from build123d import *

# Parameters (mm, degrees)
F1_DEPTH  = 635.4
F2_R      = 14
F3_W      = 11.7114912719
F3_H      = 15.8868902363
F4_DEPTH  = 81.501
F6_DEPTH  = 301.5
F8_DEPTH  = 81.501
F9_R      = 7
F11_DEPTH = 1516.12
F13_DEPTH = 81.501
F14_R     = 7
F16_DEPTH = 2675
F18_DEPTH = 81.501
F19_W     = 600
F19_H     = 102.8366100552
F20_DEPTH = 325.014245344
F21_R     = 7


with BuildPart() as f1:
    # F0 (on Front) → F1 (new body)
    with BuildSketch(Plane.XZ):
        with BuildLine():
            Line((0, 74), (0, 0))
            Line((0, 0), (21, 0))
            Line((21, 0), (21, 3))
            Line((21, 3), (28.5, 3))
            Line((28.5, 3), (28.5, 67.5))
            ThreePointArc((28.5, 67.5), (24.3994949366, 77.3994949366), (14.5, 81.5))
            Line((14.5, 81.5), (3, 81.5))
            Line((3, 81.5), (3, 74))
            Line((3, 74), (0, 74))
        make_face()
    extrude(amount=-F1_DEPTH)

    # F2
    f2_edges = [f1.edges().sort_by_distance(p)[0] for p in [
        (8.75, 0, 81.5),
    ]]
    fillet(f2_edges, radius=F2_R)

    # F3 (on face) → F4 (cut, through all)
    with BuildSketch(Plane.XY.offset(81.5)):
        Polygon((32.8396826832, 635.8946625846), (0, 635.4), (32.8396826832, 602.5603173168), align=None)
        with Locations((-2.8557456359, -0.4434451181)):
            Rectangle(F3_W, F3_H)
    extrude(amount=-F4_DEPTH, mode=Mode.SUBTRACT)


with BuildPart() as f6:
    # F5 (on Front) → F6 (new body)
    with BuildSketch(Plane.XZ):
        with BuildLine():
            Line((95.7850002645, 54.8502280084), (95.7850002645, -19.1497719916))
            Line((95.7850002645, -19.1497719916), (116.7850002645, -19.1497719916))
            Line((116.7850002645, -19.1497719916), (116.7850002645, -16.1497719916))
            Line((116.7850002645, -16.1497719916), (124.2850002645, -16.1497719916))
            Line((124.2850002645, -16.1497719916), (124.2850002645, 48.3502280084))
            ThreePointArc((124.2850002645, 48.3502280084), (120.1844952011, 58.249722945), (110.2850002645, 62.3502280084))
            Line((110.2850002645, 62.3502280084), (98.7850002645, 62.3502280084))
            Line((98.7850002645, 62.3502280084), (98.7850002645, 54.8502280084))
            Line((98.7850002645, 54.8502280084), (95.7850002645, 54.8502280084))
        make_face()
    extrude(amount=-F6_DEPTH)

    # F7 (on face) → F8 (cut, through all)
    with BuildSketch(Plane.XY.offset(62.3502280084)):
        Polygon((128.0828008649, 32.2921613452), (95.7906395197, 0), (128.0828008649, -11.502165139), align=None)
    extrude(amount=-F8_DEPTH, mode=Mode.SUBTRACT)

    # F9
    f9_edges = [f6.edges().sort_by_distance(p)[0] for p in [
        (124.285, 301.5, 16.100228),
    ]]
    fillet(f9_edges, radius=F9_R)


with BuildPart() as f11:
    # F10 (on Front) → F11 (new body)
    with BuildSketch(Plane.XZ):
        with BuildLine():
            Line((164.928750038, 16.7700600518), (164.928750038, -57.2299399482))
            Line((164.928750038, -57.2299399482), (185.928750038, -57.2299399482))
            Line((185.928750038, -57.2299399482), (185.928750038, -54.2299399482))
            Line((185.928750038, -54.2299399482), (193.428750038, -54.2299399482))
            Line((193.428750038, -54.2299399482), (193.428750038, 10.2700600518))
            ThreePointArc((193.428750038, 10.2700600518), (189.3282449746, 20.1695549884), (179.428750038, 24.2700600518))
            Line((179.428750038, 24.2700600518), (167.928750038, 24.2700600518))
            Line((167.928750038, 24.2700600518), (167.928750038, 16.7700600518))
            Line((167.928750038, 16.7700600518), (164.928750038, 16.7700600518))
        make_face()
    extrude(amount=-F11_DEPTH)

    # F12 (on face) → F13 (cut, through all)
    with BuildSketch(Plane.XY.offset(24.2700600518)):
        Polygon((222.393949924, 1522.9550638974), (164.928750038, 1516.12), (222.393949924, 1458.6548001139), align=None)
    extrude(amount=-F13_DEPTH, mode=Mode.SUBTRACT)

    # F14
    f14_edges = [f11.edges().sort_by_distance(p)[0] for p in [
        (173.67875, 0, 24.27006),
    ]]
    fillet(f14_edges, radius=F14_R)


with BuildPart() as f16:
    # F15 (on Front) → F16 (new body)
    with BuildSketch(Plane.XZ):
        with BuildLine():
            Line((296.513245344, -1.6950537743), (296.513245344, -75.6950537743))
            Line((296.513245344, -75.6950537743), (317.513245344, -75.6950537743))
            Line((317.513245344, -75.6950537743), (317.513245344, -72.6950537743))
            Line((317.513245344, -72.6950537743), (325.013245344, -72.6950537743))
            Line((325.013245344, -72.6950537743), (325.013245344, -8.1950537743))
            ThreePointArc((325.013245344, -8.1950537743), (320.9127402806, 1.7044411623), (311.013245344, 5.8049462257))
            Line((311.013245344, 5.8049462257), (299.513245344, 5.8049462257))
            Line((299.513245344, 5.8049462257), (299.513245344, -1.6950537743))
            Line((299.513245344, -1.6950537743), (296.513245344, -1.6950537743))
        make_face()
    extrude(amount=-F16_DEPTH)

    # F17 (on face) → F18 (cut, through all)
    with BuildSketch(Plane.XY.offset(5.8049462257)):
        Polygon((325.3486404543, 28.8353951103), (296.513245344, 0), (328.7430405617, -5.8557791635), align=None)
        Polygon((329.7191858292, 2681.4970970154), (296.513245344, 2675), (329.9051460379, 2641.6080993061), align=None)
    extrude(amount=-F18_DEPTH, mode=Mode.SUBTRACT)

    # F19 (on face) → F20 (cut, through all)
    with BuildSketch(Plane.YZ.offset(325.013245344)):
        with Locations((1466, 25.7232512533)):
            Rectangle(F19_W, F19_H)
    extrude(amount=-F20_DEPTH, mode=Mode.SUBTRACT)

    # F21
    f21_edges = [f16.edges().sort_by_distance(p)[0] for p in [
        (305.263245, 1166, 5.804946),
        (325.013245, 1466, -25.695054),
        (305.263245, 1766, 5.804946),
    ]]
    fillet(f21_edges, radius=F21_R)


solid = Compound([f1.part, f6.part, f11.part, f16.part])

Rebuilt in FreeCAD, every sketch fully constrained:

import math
import FreeCAD as App
import Part
import Sketcher

V = App.Vector
Q = App.Units.Quantity


def edges_at(feature, points):
    """Names of the edges that pass closest to the given points."""
    edges = feature.Shape.Edges
    near = lambda p: min(range(len(edges)), key=lambda i: edges[i].distToShape(Part.Vertex(*p))[0])
    return sorted({f"Edge{near(p) + 1}" for p in points})

doc = App.newDocument("Part")
body = doc.addObject("PartDesign::Body", "Body")

# Sketch on XZ plane
sketch1 = body.newObject("Sketcher::SketchObject", "Sketch")
sketch1.AttachmentSupport = (doc.getObject("XZ_Plane"), [""])
sketch1.MapMode = "FlatFace"
sketch1.addGeometry(Part.LineSegment(V(0, 74, 0), V(0, 0, 0)), False)
sketch1.addGeometry(Part.LineSegment(V(0, 0, 0), V(21, 0, 0)), False)
sketch1.addGeometry(Part.LineSegment(V(21, 0, 0), V(21, 3, 0)), False)
sketch1.addGeometry(Part.LineSegment(V(21, 3, 0), V(28.5, 3, 0)), False)
sketch1.addGeometry(Part.LineSegment(V(28.5, 3, 0), V(28.5, 67.5, 0)), False)
sketch1.addGeometry(Part.ArcOfCircle(Part.Circle(V(14.5, 67.5, 0), V(0, 0, 1), 14), math.radians(0), math.radians(90)), False)
sketch1.addGeometry(Part.LineSegment(V(14.5, 81.5, 0), V(3, 81.5, 0)), False)
sketch1.addGeometry(Part.LineSegment(V(3, 81.5, 0), V(3, 74, 0)), False)
sketch1.addGeometry(Part.LineSegment(V(3, 74, 0), V(0, 74, 0)), False)
sketch1.addConstraint(Sketcher.Constraint("Coincident", 0, 2, 1, 1))
sketch1.addConstraint(Sketcher.Constraint("Coincident", 1, 2, 2, 1))
sketch1.addConstraint(Sketcher.Constraint("Coincident", 2, 2, 3, 1))
sketch1.addConstraint(Sketcher.Constraint("Coincident", 3, 2, 4, 1))
sketch1.addConstraint(Sketcher.Constraint("Tangent", 4, 2, 5, 1))
sketch1.addConstraint(Sketcher.Constraint("Tangent", 5, 2, 6, 1))
sketch1.addConstraint(Sketcher.Constraint("Coincident", 6, 2, 7, 1))
sketch1.addConstraint(Sketcher.Constraint("Coincident", 7, 2, 8, 1))
sketch1.addConstraint(Sketcher.Constraint("Coincident", 8, 2, 0, 1))
sketch1.addConstraint(Sketcher.Constraint("Vertical", 0))
sketch1.addConstraint(Sketcher.Constraint("Horizontal", 1))
sketch1.addConstraint(Sketcher.Constraint("Vertical", 2))
sketch1.addConstraint(Sketcher.Constraint("Horizontal", 3))
sketch1.addConstraint(Sketcher.Constraint("Vertical", 4))
sketch1.addConstraint(Sketcher.Constraint("Horizontal", 6))
sketch1.addConstraint(Sketcher.Constraint("Vertical", 7))
sketch1.addConstraint(Sketcher.Constraint("Horizontal", 8))
sketch1.addConstraint(Sketcher.Constraint("Coincident", 0, 2, -1, 1))
sketch1.addConstraint(Sketcher.Constraint("Equal", 8, 2))
sketch1.addConstraint(Sketcher.Constraint("Equal", 3, 7))
sketch1.addConstraint(Sketcher.Constraint("Radius", 5, Q("14 mm")))
sketch1.addConstraint(Sketcher.Constraint("DistanceX", 1, 1, 1, 2, Q("21 mm")))
sketch1.addConstraint(Sketcher.Constraint("DistanceX", 8, 2, 8, 1, Q("3 mm")))
sketch1.addConstraint(Sketcher.Constraint("DistanceY", 0, 2, 0, 1, Q("74 mm")))
sketch1.addConstraint(Sketcher.Constraint("DistanceX", 3, 1, 3, 2, Q("7.5 mm")))
pad1 = body.newObject("PartDesign::Pad", "Pad")
pad1.Profile = sketch1
pad1.Length = 635.4
pad1.Reversed = True
doc.recompute()

fillet = body.newObject("PartDesign::Fillet", "Fillet")
fillet.Base = (pad1, edges_at(pad1, [(8.75, 0, 81.5)]))
fillet.Radius = 14

# Sketch on XY plane
sketch2 = body.newObject("Sketcher::SketchObject", "Sketch001")
sketch2.AttachmentSupport = (doc.getObject("XY_Plane"), [""])
sketch2.MapMode = "FlatFace"
sketch2.AttachmentOffset = App.Placement(V(0, 0, 81.5), App.Rotation())
sketch2.addGeometry(Part.LineSegment(V(33, 636, 0), V(0, 635, 0)), False)
sketch2.addGeometry(Part.LineSegment(V(0, 635, 0), V(33, 603, 0)), False)
sketch2.addGeometry(Part.LineSegment(V(33, 603, 0), V(33, 636, 0)), False)
sketch2.addGeometry(Part.LineSegment(V(-9, 8, 0), V(-9, -8, 0)), False)
sketch2.addGeometry(Part.LineSegment(V(-9, -8, 0), V(3, -8, 0)), False)
sketch2.addGeometry(Part.LineSegment(V(3, -8, 0), V(3, 8, 0)), False)
sketch2.addGeometry(Part.LineSegment(V(3, 8, 0), V(-9, 8, 0)), False)
sketch2.addConstraint(Sketcher.Constraint("Coincident", 0, 2, 1, 1))
sketch2.addConstraint(Sketcher.Constraint("Coincident", 1, 2, 2, 1))
sketch2.addConstraint(Sketcher.Constraint("Coincident", 2, 2, 0, 1))
sketch2.addConstraint(Sketcher.Constraint("Coincident", 3, 2, 4, 1))
sketch2.addConstraint(Sketcher.Constraint("Coincident", 4, 2, 5, 1))
sketch2.addConstraint(Sketcher.Constraint("Coincident", 5, 2, 6, 1))
sketch2.addConstraint(Sketcher.Constraint("Coincident", 6, 2, 3, 1))
sketch2.addConstraint(Sketcher.Constraint("Vertical", 2))
sketch2.addConstraint(Sketcher.Constraint("Vertical", 3))
sketch2.addConstraint(Sketcher.Constraint("Horizontal", 4))
sketch2.addConstraint(Sketcher.Constraint("Vertical", 5))
sketch2.addConstraint(Sketcher.Constraint("Horizontal", 6))
sketch2.addConstraint(Sketcher.Constraint("PointOnObject", 0, 2, -2))
sketch2.addConstraint(Sketcher.Constraint("Angle", 1, Q("-45 deg")))
sketch2.addConstraint(Sketcher.Constraint("DistanceX", -1, 1, 4, 2, Q("3 mm")))
sketch2.addConstraint(Sketcher.Constraint("DistanceY", -1, 1, 0, 2, Q("635.4 mm")))
sketch2.addConstraint(Sketcher.Constraint("DistanceY", -1, 1, 5, 2, Q("7.5 mm")))
sketch2.addConstraint(Sketcher.Constraint("DistanceX", 4, 1, 4, 2, Q("11.711491 mm")))
sketch2.addConstraint(Sketcher.Constraint("DistanceY", 3, 2, 3, 1, Q("15.88689 mm")))
sketch2.addConstraint(Sketcher.Constraint("Distance", 0, Q("32.843408 mm")))
sketch2.addConstraint(Sketcher.Constraint("DistanceY", 2, 1, 2, 2, Q("33.334345 mm")))
pocket1 = body.newObject("PartDesign::Pocket", "Pocket")
pocket1.Profile = sketch2
pocket1.Type = "ThroughAll"
body2 = doc.addObject("PartDesign::Body", "Body001")

# Sketch on XZ plane
sketch3 = body2.newObject("Sketcher::SketchObject", "Sketch002")
sketch3.AttachmentSupport = (doc.getObject("XZ_Plane001"), [""])
sketch3.MapMode = "FlatFace"
sketch3.addGeometry(Part.LineSegment(V(95.8, 54.9, 0), V(95.8, -19.1, 0)), False)
sketch3.addGeometry(Part.LineSegment(V(95.8, -19.1, 0), V(116.8, -19.1, 0)), False)
sketch3.addGeometry(Part.LineSegment(V(116.8, -19.1, 0), V(116.8, -16.1, 0)), False)
sketch3.addGeometry(Part.LineSegment(V(116.8, -16.1, 0), V(124.3, -16.1, 0)), False)
sketch3.addGeometry(Part.LineSegment(V(124.3, -16.1, 0), V(124.3, 48.4, 0)), False)
sketch3.addGeometry(Part.ArcOfCircle(Part.Circle(V(110.3, 48.4, 0), V(0, 0, 1), 14), math.radians(0), math.radians(90)), False)
sketch3.addGeometry(Part.LineSegment(V(110.3, 62.4, 0), V(98.8, 62.4, 0)), False)
sketch3.addGeometry(Part.LineSegment(V(98.8, 62.4, 0), V(98.8, 54.9, 0)), False)
sketch3.addGeometry(Part.LineSegment(V(98.8, 54.9, 0), V(95.8, 54.9, 0)), False)
sketch3.addConstraint(Sketcher.Constraint("Coincident", 0, 2, 1, 1))
sketch3.addConstraint(Sketcher.Constraint("Coincident", 1, 2, 2, 1))
sketch3.addConstraint(Sketcher.Constraint("Coincident", 2, 2, 3, 1))
sketch3.addConstraint(Sketcher.Constraint("Coincident", 3, 2, 4, 1))
sketch3.addConstraint(Sketcher.Constraint("Tangent", 4, 2, 5, 1))
sketch3.addConstraint(Sketcher.Constraint("Tangent", 5, 2, 6, 1))
sketch3.addConstraint(Sketcher.Constraint("Coincident", 6, 2, 7, 1))
sketch3.addConstraint(Sketcher.Constraint("Coincident", 7, 2, 8, 1))
sketch3.addConstraint(Sketcher.Constraint("Coincident", 8, 2, 0, 1))
sketch3.addConstraint(Sketcher.Constraint("Vertical", 0))
sketch3.addConstraint(Sketcher.Constraint("Horizontal", 1))
sketch3.addConstraint(Sketcher.Constraint("Vertical", 2))
sketch3.addConstraint(Sketcher.Constraint("Horizontal", 3))
sketch3.addConstraint(Sketcher.Constraint("Vertical", 4))
sketch3.addConstraint(Sketcher.Constraint("Horizontal", 6))
sketch3.addConstraint(Sketcher.Constraint("Vertical", 7))
sketch3.addConstraint(Sketcher.Constraint("Horizontal", 8))
sketch3.addConstraint(Sketcher.Constraint("Equal", 8, 2))
sketch3.addConstraint(Sketcher.Constraint("Equal", 3, 7))
sketch3.addConstraint(Sketcher.Constraint("Radius", 5, Q("14 mm")))
sketch3.addConstraint(Sketcher.Constraint("DistanceX", 1, 1, 1, 2, Q("21 mm")))
sketch3.addConstraint(Sketcher.Constraint("DistanceX", 8, 2, 8, 1, Q("3 mm")))
sketch3.addConstraint(Sketcher.Constraint("DistanceY", 0, 2, 0, 1, Q("74 mm")))
sketch3.addConstraint(Sketcher.Constraint("DistanceX", 3, 1, 3, 2, Q("7.5 mm")))
sketch3.addConstraint(Sketcher.Constraint("DistanceX", -1, 1, 5, 3, Q("110.285 mm")))
sketch3.addConstraint(Sketcher.Constraint("DistanceY", -1, 1, 5, 3, Q("48.350228 mm")))
pad2 = body2.newObject("PartDesign::Pad", "Pad001")
pad2.Profile = sketch3
pad2.Length = 301.5
pad2.Reversed = True

# Sketch on XY plane
sketch4 = body2.newObject("Sketcher::SketchObject", "Sketch003")
sketch4.AttachmentSupport = (doc.getObject("XY_Plane001"), [""])
sketch4.MapMode = "FlatFace"
sketch4.AttachmentOffset = App.Placement(V(0, 0, 62.350228), App.Rotation())
sketch4.addGeometry(Part.LineSegment(V(128, 32, 0), V(96, 0, 0)), False)
sketch4.addGeometry(Part.LineSegment(V(96, 0, 0), V(128, -12, 0)), False)
sketch4.addGeometry(Part.LineSegment(V(128, -12, 0), V(128, 32, 0)), False)
sketch4.addConstraint(Sketcher.Constraint("Coincident", 0, 2, 1, 1))
sketch4.addConstraint(Sketcher.Constraint("Coincident", 1, 2, 2, 1))
sketch4.addConstraint(Sketcher.Constraint("Coincident", 2, 2, 0, 1))
sketch4.addConstraint(Sketcher.Constraint("Vertical", 2))
sketch4.addConstraint(Sketcher.Constraint("PointOnObject", 0, 2, -1))
sketch4.addConstraint(Sketcher.Constraint("Angle", 0, Q("-135 deg")))
sketch4.addConstraint(Sketcher.Constraint("DistanceX", -1, 1, 1, 2, Q("128.082801 mm")))
sketch4.addConstraint(Sketcher.Constraint("Distance", 1, Q("34.279491 mm")))
sketch4.addConstraint(Sketcher.Constraint("DistanceY", 2, 1, 2, 2, Q("43.794326 mm")))
pocket2 = body2.newObject("PartDesign::Pocket", "Pocket001")
pocket2.Profile = sketch4
pocket2.Type = "ThroughAll"
doc.recompute()

fillet2 = body2.newObject("PartDesign::Fillet", "Fillet001")
fillet2.Base = (pocket2, edges_at(pocket2, [(124.285, 301.5, 16.1)]))
fillet2.Radius = 7
body3 = doc.addObject("PartDesign::Body", "Body002")

# Sketch on XZ plane
sketch5 = body3.newObject("Sketcher::SketchObject", "Sketch004")
sketch5.AttachmentSupport = (doc.getObject("XZ_Plane002"), [""])
sketch5.MapMode = "FlatFace"
sketch5.addGeometry(Part.LineSegment(V(164.9, 16.8, 0), V(164.9, -57.2, 0)), False)
sketch5.addGeometry(Part.LineSegment(V(164.9, -57.2, 0), V(185.9, -57.2, 0)), False)
sketch5.addGeometry(Part.LineSegment(V(185.9, -57.2, 0), V(185.9, -54.2, 0)), False)
sketch5.addGeometry(Part.LineSegment(V(185.9, -54.2, 0), V(193.4, -54.2, 0)), False)
sketch5.addGeometry(Part.LineSegment(V(193.4, -54.2, 0), V(193.4, 10.3, 0)), False)
sketch5.addGeometry(Part.ArcOfCircle(Part.Circle(V(179.4, 10.3, 0), V(0, 0, 1), 14), math.radians(0), math.radians(90)), False)
sketch5.addGeometry(Part.LineSegment(V(179.4, 24.3, 0), V(167.9, 24.3, 0)), False)
sketch5.addGeometry(Part.LineSegment(V(167.9, 24.3, 0), V(167.9, 16.8, 0)), False)
sketch5.addGeometry(Part.LineSegment(V(167.9, 16.8, 0), V(164.9, 16.8, 0)), False)
sketch5.addConstraint(Sketcher.Constraint("Coincident", 0, 2, 1, 1))
sketch5.addConstraint(Sketcher.Constraint("Coincident", 1, 2, 2, 1))
sketch5.addConstraint(Sketcher.Constraint("Coincident", 2, 2, 3, 1))
sketch5.addConstraint(Sketcher.Constraint("Coincident", 3, 2, 4, 1))
sketch5.addConstraint(Sketcher.Constraint("Tangent", 4, 2, 5, 1))
sketch5.addConstraint(Sketcher.Constraint("Tangent", 5, 2, 6, 1))
sketch5.addConstraint(Sketcher.Constraint("Coincident", 6, 2, 7, 1))
sketch5.addConstraint(Sketcher.Constraint("Coincident", 7, 2, 8, 1))
sketch5.addConstraint(Sketcher.Constraint("Coincident", 8, 2, 0, 1))
sketch5.addConstraint(Sketcher.Constraint("Vertical", 0))
sketch5.addConstraint(Sketcher.Constraint("Horizontal", 1))
sketch5.addConstraint(Sketcher.Constraint("Vertical", 2))
sketch5.addConstraint(Sketcher.Constraint("Horizontal", 3))
sketch5.addConstraint(Sketcher.Constraint("Vertical", 4))
sketch5.addConstraint(Sketcher.Constraint("Horizontal", 6))
sketch5.addConstraint(Sketcher.Constraint("Vertical", 7))
sketch5.addConstraint(Sketcher.Constraint("Horizontal", 8))
sketch5.addConstraint(Sketcher.Constraint("Equal", 8, 2))
sketch5.addConstraint(Sketcher.Constraint("Equal", 3, 7))
sketch5.addConstraint(Sketcher.Constraint("Radius", 5, Q("14 mm")))
sketch5.addConstraint(Sketcher.Constraint("DistanceX", 1, 1, 1, 2, Q("21 mm")))
sketch5.addConstraint(Sketcher.Constraint("DistanceX", 8, 2, 8, 1, Q("3 mm")))
sketch5.addConstraint(Sketcher.Constraint("DistanceY", 0, 2, 0, 1, Q("74 mm")))
sketch5.addConstraint(Sketcher.Constraint("DistanceX", 3, 1, 3, 2, Q("7.5 mm")))
sketch5.addConstraint(Sketcher.Constraint("DistanceX", -1, 1, 5, 3, Q("179.42875 mm")))
sketch5.addConstraint(Sketcher.Constraint("DistanceY", -1, 1, 5, 3, Q("10.27006 mm")))
pad3 = body3.newObject("PartDesign::Pad", "Pad002")
pad3.Profile = sketch5
pad3.Length = 1516.12
pad3.Reversed = True

# Sketch on XY plane
sketch6 = body3.newObject("Sketcher::SketchObject", "Sketch005")
sketch6.AttachmentSupport = (doc.getObject("XY_Plane002"), [""])
sketch6.MapMode = "FlatFace"
sketch6.AttachmentOffset = App.Placement(V(0, 0, 24.27006), App.Rotation())
sketch6.addGeometry(Part.LineSegment(V(222, 1523, 0), V(165, 1516, 0)), False)
sketch6.addGeometry(Part.LineSegment(V(165, 1516, 0), V(222, 1459, 0)), False)
sketch6.addGeometry(Part.LineSegment(V(222, 1459, 0), V(222, 1523, 0)), False)
sketch6.addConstraint(Sketcher.Constraint("Coincident", 0, 2, 1, 1))
sketch6.addConstraint(Sketcher.Constraint("Coincident", 1, 2, 2, 1))
sketch6.addConstraint(Sketcher.Constraint("Coincident", 2, 2, 0, 1))
sketch6.addConstraint(Sketcher.Constraint("Vertical", 2))
sketch6.addConstraint(Sketcher.Constraint("Angle", 1, Q("-45 deg")))
sketch6.addConstraint(Sketcher.Constraint("DistanceY", -1, 1, 0, 2, Q("1516.12 mm")))
sketch6.addConstraint(Sketcher.Constraint("DistanceY", -1, 1, 1, 2, Q("1458.6548 mm")))
sketch6.addConstraint(Sketcher.Constraint("DistanceY", 2, 1, 2, 2, Q("64.300264 mm")))
sketch6.addConstraint(Sketcher.Constraint("DistanceX", -1, 1, 0, 2, Q("164.92875 mm")))
pocket3 = body3.newObject("PartDesign::Pocket", "Pocket002")
pocket3.Profile = sketch6
pocket3.Type = "ThroughAll"
doc.recompute()

fillet3 = body3.newObject("PartDesign::Fillet", "Fillet002")
fillet3.Base = (pocket3, edges_at(pocket3, [(173.679, 0, 24.27)]))
fillet3.Radius = 7
body4 = doc.addObject("PartDesign::Body", "Body003")

# Sketch on XZ plane
sketch7 = body4.newObject("Sketcher::SketchObject", "Sketch006")
sketch7.AttachmentSupport = (doc.getObject("XZ_Plane003"), [""])
sketch7.MapMode = "FlatFace"
sketch7.addGeometry(Part.LineSegment(V(296.5, -1.7, 0), V(296.5, -75.7, 0)), False)
sketch7.addGeometry(Part.LineSegment(V(296.5, -75.7, 0), V(317.5, -75.7, 0)), False)
sketch7.addGeometry(Part.LineSegment(V(317.5, -75.7, 0), V(317.5, -72.7, 0)), False)
sketch7.addGeometry(Part.LineSegment(V(317.5, -72.7, 0), V(325, -72.7, 0)), False)
sketch7.addGeometry(Part.LineSegment(V(325, -72.7, 0), V(325, -8.2, 0)), False)
sketch7.addGeometry(Part.ArcOfCircle(Part.Circle(V(311, -8.2, 0), V(0, 0, 1), 14), math.radians(0), math.radians(90)), False)
sketch7.addGeometry(Part.LineSegment(V(311, 5.8, 0), V(299.5, 5.8, 0)), False)
sketch7.addGeometry(Part.LineSegment(V(299.5, 5.8, 0), V(299.5, -1.7, 0)), False)
sketch7.addGeometry(Part.LineSegment(V(299.5, -1.7, 0), V(296.5, -1.7, 0)), False)
sketch7.addConstraint(Sketcher.Constraint("Coincident", 0, 2, 1, 1))
sketch7.addConstraint(Sketcher.Constraint("Coincident", 1, 2, 2, 1))
sketch7.addConstraint(Sketcher.Constraint("Coincident", 2, 2, 3, 1))
sketch7.addConstraint(Sketcher.Constraint("Coincident", 3, 2, 4, 1))
sketch7.addConstraint(Sketcher.Constraint("Tangent", 4, 2, 5, 1))
sketch7.addConstraint(Sketcher.Constraint("Tangent", 5, 2, 6, 1))
sketch7.addConstraint(Sketcher.Constraint("Coincident", 6, 2, 7, 1))
sketch7.addConstraint(Sketcher.Constraint("Coincident", 7, 2, 8, 1))
sketch7.addConstraint(Sketcher.Constraint("Coincident", 8, 2, 0, 1))
sketch7.addConstraint(Sketcher.Constraint("Vertical", 0))
sketch7.addConstraint(Sketcher.Constraint("Horizontal", 1))
sketch7.addConstraint(Sketcher.Constraint("Vertical", 2))
sketch7.addConstraint(Sketcher.Constraint("Horizontal", 3))
sketch7.addConstraint(Sketcher.Constraint("Vertical", 4))
sketch7.addConstraint(Sketcher.Constraint("Horizontal", 6))
sketch7.addConstraint(Sketcher.Constraint("Vertical", 7))
sketch7.addConstraint(Sketcher.Constraint("Horizontal", 8))
sketch7.addConstraint(Sketcher.Constraint("Equal", 8, 2))
sketch7.addConstraint(Sketcher.Constraint("Equal", 3, 7))
sketch7.addConstraint(Sketcher.Constraint("Radius", 5, Q("14 mm")))
sketch7.addConstraint(Sketcher.Constraint("DistanceX", 1, 1, 1, 2, Q("21 mm")))
sketch7.addConstraint(Sketcher.Constraint("DistanceX", 8, 2, 8, 1, Q("3 mm")))
sketch7.addConstraint(Sketcher.Constraint("DistanceY", 0, 2, 0, 1, Q("74 mm")))
sketch7.addConstraint(Sketcher.Constraint("DistanceX", 3, 1, 3, 2, Q("7.5 mm")))
sketch7.addConstraint(Sketcher.Constraint("DistanceX", -1, 1, 5, 3, Q("311.013245 mm")))
sketch7.addConstraint(Sketcher.Constraint("DistanceY", 5, 3, -1, 1, Q("8.195054 mm")))
pad4 = body4.newObject("PartDesign::Pad", "Pad003")
pad4.Profile = sketch7
pad4.Length = 2675
pad4.Reversed = True

# Sketch on XY plane
sketch8 = body4.newObject("Sketcher::SketchObject", "Sketch007")
sketch8.AttachmentSupport = (doc.getObject("XY_Plane003"), [""])
sketch8.MapMode = "FlatFace"
sketch8.AttachmentOffset = App.Placement(V(0, 0, 5.804946), App.Rotation())
sketch8.addGeometry(Part.LineSegment(V(325.34864, 28.835395, 0), V(296.513245, 0, 0)), False)
sketch8.addGeometry(Part.LineSegment(V(296.513245, 0, 0), V(328.743041, -5.855779, 0)), False)
sketch8.addGeometry(Part.LineSegment(V(328.743041, -5.855779, 0), V(325.34864, 28.835395, 0)), False)
sketch8.addGeometry(Part.LineSegment(V(329.719186, 2681.497097, 0), V(296.513245, 2675, 0)), False)
sketch8.addGeometry(Part.LineSegment(V(296.513245, 2675, 0), V(329.905146, 2641.608099, 0)), False)
sketch8.addGeometry(Part.LineSegment(V(329.905146, 2641.608099, 0), V(329.719186, 2681.497097, 0)), False)
sketch8.addConstraint(Sketcher.Constraint("Coincident", 0, 2, 1, 1))
sketch8.addConstraint(Sketcher.Constraint("Coincident", 1, 2, 2, 1))
sketch8.addConstraint(Sketcher.Constraint("Coincident", 2, 2, 0, 1))
sketch8.addConstraint(Sketcher.Constraint("Coincident", 3, 2, 4, 1))
sketch8.addConstraint(Sketcher.Constraint("Coincident", 4, 2, 5, 1))
sketch8.addConstraint(Sketcher.Constraint("Coincident", 5, 2, 3, 1))
sketch8.addConstraint(Sketcher.Constraint("PointOnObject", 0, 2, -1))
sketch8.addConstraint(Sketcher.Constraint("DistanceY", -1, 1, 3, 2, Q("2675 mm")))
sketch8.addConstraint(Sketcher.Constraint("DistanceY", -1, 1, 4, 2, Q("2641.608099 mm")))
sketch8.addConstraint(Sketcher.Constraint("DistanceX", 2, 2, 1, 2, Q("3.3944 mm")))
sketch8.addConstraint(Sketcher.Constraint("DistanceX", 3, 2, 4, 2, Q("33.391901 mm")))
sketch8.addConstraint(Sketcher.Constraint("DistanceX", 0, 2, 4, 2, Q("33.391901 mm")))
sketch8.addConstraint(Sketcher.Constraint("DistanceY", 2, 2, 5, 2, Q("2652.661702 mm")))
sketch8.addConstraint(Sketcher.Constraint("Distance", 1, Q("32.75744 mm")))
sketch8.addConstraint(Sketcher.Constraint("Distance", 5, Q("39.889431 mm")))
sketch8.addConstraint(Sketcher.Constraint("DistanceX", -1, 1, 1, 2, Q("328.743041 mm")))
sketch8.addConstraint(Sketcher.Constraint("DistanceY", 1, 2, -1, 1, Q("5.855779 mm")))
sketch8.addConstraint(Sketcher.Constraint("DistanceX", 3, 2, 5, 2, Q("33.20594 mm")))
pocket4 = body4.newObject("PartDesign::Pocket", "Pocket003")
pocket4.Profile = sketch8
pocket4.Type = "ThroughAll"

# Sketch on YZ plane
sketch9 = body4.newObject("Sketcher::SketchObject", "Sketch008")
sketch9.AttachmentSupport = (doc.getObject("YZ_Plane003"), [""])
sketch9.MapMode = "FlatFace"
sketch9.AttachmentOffset = App.Placement(V(0, 0, 325.013245), App.Rotation())
sketch9.addGeometry(Part.LineSegment(V(1166, 77, 0), V(1166, -26, 0)), False)
sketch9.addGeometry(Part.LineSegment(V(1166, -26, 0), V(1766, -26, 0)), False)
sketch9.addGeometry(Part.LineSegment(V(1766, -26, 0), V(1766, 77, 0)), False)
sketch9.addGeometry(Part.LineSegment(V(1766, 77, 0), V(1166, 77, 0)), False)
sketch9.addConstraint(Sketcher.Constraint("Coincident", 0, 2, 1, 1))
sketch9.addConstraint(Sketcher.Constraint("Coincident", 1, 2, 2, 1))
sketch9.addConstraint(Sketcher.Constraint("Coincident", 2, 2, 3, 1))
sketch9.addConstraint(Sketcher.Constraint("Coincident", 3, 2, 0, 1))
sketch9.addConstraint(Sketcher.Constraint("Vertical", 0))
sketch9.addConstraint(Sketcher.Constraint("Horizontal", 1))
sketch9.addConstraint(Sketcher.Constraint("Vertical", 2))
sketch9.addConstraint(Sketcher.Constraint("Horizontal", 3))
sketch9.addConstraint(Sketcher.Constraint("DistanceX", 1, 1, 1, 2, Q("600 mm")))
sketch9.addConstraint(Sketcher.Constraint("DistanceX", -1, 1, 0, 2, Q("1166 mm")))
sketch9.addConstraint(Sketcher.Constraint("DistanceY", 0, 2, 0, 1, Q("102.83661 mm")))
sketch9.addConstraint(Sketcher.Constraint("DistanceY", 0, 2, -1, 1, Q("25.695054 mm")))
pocket5 = body4.newObject("PartDesign::Pocket", "Pocket004")
pocket5.Profile = sketch9
pocket5.Type = "ThroughAll"
doc.recompute()

fillet4 = body4.newObject("PartDesign::Fillet", "Fillet003")
fillet4.Base = (pocket5, edges_at(pocket5, [(305.263, 1166, 5.805), (325.013, 1466, -25.695), (305.263, 1766, 5.805)]))
fillet4.Radius = 7

doc.recompute()
